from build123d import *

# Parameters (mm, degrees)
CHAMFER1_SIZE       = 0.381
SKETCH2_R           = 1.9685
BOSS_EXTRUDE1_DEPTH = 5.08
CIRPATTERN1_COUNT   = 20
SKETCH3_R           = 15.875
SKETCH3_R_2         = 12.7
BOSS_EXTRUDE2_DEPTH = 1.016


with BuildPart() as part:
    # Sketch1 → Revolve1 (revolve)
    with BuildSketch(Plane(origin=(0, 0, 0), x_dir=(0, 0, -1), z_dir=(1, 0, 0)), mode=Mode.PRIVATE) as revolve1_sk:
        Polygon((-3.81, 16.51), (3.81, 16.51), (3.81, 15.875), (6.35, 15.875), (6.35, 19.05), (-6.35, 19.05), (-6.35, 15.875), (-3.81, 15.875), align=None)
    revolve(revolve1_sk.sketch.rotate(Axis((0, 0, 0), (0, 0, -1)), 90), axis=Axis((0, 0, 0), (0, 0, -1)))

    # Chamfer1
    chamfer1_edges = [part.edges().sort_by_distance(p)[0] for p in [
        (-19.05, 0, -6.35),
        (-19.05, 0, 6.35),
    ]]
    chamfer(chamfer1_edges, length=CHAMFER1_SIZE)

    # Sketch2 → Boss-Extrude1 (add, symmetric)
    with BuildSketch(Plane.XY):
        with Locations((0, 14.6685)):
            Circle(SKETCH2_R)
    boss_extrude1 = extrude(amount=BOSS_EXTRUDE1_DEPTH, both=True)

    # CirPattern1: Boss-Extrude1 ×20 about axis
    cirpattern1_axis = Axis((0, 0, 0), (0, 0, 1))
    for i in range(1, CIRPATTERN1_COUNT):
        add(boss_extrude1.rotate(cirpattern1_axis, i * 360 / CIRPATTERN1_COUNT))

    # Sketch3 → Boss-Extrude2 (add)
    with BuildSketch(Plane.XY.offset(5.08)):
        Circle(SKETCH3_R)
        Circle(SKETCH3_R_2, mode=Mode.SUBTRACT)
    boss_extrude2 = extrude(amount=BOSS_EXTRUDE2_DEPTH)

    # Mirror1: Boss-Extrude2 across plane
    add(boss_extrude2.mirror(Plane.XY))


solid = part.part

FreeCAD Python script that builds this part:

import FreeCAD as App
import Part
import Sketcher

V = App.Vector
Q = App.Units.Quantity


def edges_at(feature, points):
    """Names of the edges that pass closest to the given points."""
    edges = feature.Shape.Edges
    near = lambda p: min(range(len(edges)), key=lambda i: edges[i].distToShape(Part.Vertex(*p))[0])
    return sorted({f"Edge{near(p) + 1}" for p in points})

doc = App.newDocument("Part")
params = doc.addObject("Spreadsheet::Sheet", "Params")
for row, (alias, value) in enumerate([
    ("sketch1_height", "0.3 in"),
    ("sketch1_height2", "0.1 in"),
    ("sketch1_width", "0.025 in"),
    ("revolution_angle", "360 deg"),
    ("chamfer_size", "0.015 in"),
    ("sketch2_diameter", "0.155 in"),
    ("pad1_length", "0.4 in"),
    ("sketch3_diameter", "1 in"),
    ("sketch3_diameter2", "1.25 in"),
    ("pad2_length", "0.04 in"),
], start=1):
    params.set(f"A{row}", alias)
    params.set(f"B{row}", "=" + value)
    params.setAlias(f"B{row}", alias)

body = doc.addObject("PartDesign::Body", "Body")

# Sketch on YZ plane
sketch1 = body.newObject("Sketcher::SketchObject", "Sketch")
sketch1.AttachmentSupport = (doc.getObject("YZ_Plane"), [""])
sketch1.MapMode = "FlatFace"
sketch1.addGeometry([
    Part.LineSegment(V(16.5, 3.8, 0), V(16.5, -3.8, 0)),  # 0
    Part.LineSegment(V(16.5, -3.8, 0), V(15.9, -3.8, 0)),  # 1
    Part.LineSegment(V(15.9, -3.8, 0), V(15.9, -6.3, 0)),  # 2
    Part.LineSegment(V(15.9, -6.3, 0), V(19.1, -6.3, 0)),  # 3
    Part.LineSegment(V(19.1, -6.3, 0), V(19.1, 6.3, 0)),  # 4
    Part.LineSegment(V(19.1, 6.3, 0), V(15.9, 6.3, 0)),  # 5
    Part.LineSegment(V(15.9, 6.3, 0), V(15.9, 3.8, 0)),  # 6
    Part.LineSegment(V(15.9, 3.8, 0), V(16.5, 3.8, 0)),  # 7
], False)
sketch1.addConstraint([
    Sketcher.Constraint("Coincident", 0, 2, 1, 1),
    Sketcher.Constraint("Coincident", 1, 2, 2, 1),
    Sketcher.Constraint("Coincident", 2, 2, 3, 1),
    Sketcher.Constraint("Coincident", 3, 2, 4, 1),
    Sketcher.Constraint("Coincident", 4, 2, 5, 1),
    Sketcher.Constraint("Coincident", 5, 2, 6, 1),
    Sketcher.Constraint("Coincident", 6, 2, 7, 1),
    Sketcher.Constraint("Coincident", 7, 2, 0, 1),
    Sketcher.Constraint("Vertical", 0),
    Sketcher.Constraint("Horizontal", 1),
    Sketcher.Constraint("Vertical", 2),
    Sketcher.Constraint("Horizontal", 3),
    Sketcher.Constraint("Vertical", 4),
    Sketcher.Constraint("Horizontal", 5),
    Sketcher.Constraint("Vertical", 6),
    Sketcher.Constraint("Horizontal", 7),
    Sketcher.Constraint("Symmetric", 2, 2, 5, 2, -1),
    Sketcher.Constraint("Equal", 2, 6),
    Sketcher.Constraint("DistanceY", 0, 2, 0, 1, Q("0.3 in")),
    Sketcher.Constraint("DistanceY", 2, 2, 2, 1, Q("0.1 in")),
    Sketcher.Constraint("DistanceX", 0, 2, 3, 2, Q("0.1 in")),
    Sketcher.Constraint("DistanceX", 1, 2, 1, 1, Q("0.025 in")),
    Sketcher.Constraint("DistanceX", -1, 1, 0, 2, Q("0.65 in")),
])
sketch1.setExpression("Constraints[18]", "Params.sketch1_height")
sketch1.setExpression("Constraints[19]", "Params.sketch1_height2")
sketch1.setExpression("Constraints[21]", "Params.sketch1_width")
revolution = body.newObject("PartDesign::Revolution", "Revolution")
revolution.Profile = sketch1
revolution.ReferenceAxis = (sketch1, ["V_Axis"])
revolution.setExpression("Angle", "Params.revolution_angle")
doc.recompute()

chamfer = body.newObject("PartDesign::Chamfer", "Chamfer")
chamfer.Base = (revolution, edges_at(revolution, [(-19.05, 0, -6.35), (-19.05, 0, 6.35)]))
chamfer.setExpression("Size", "Params.chamfer_size")

# Sketch on XY plane
sketch2 = body.newObject("Sketcher::SketchObject", "Sketch001")
sketch2.AttachmentSupport = (doc.getObject("XY_Plane"), [""])
sketch2.MapMode = "FlatFace"
sketch2.addGeometry(Part.Circle(V(0, 14.7, 0), V(0, 0, 1), 2), False)
sketch2.addConstraint([
    Sketcher.Constraint("PointOnObject", 0, 3, -2),
    Sketcher.Constraint("Diameter", 0, Q("0.155 in")),
    Sketcher.Constraint("DistanceY", -1, 1, 0, 3, Q("0.5775 in")),
])
sketch2.setExpression("Constraints[1]", "Params.sketch2_diameter")
pad1 = body.newObject("PartDesign::Pad", "Pad")
pad1.Profile = sketch2
pad1.setExpression("Length", "Params.pad1_length")
pad1.Midplane = True
doc.recompute()

polarpattern = body.newObject("PartDesign::PolarPattern", "PolarPattern")
polarpattern.Originals = [pad1]
polarpattern.Axis = (doc.getObject("Z_Axis"), [""])
polarpattern.Angle = 360
polarpattern.Occurrences = 20
body.Tip = polarpattern

# Sketch on XY plane
sketch3 = body.newObject("Sketcher::SketchObject", "Sketch002")
sketch3.AttachmentSupport = (doc.getObject("XY_Plane"), [""])
sketch3.MapMode = "FlatFace"
sketch3.AttachmentOffset = App.Placement(V(0, 0, 0.2 * 25.4), App.Rotation())
sketch3.addGeometry([
    Part.Circle(V(0, 0, 0), V(0, 0, 1), 16),
    Part.Circle(V(0, 0, 0), V(0, 0, 1), 13),
], False)
sketch3.addConstraint([
    Sketcher.Constraint("Coincident", 0, 3, -1, 1),
    Sketcher.Constraint("Coincident", 1, 3, -1, 1),
    Sketcher.Constraint("Diameter", 1, Q("1 in")),
    Sketcher.Constraint("Diameter", 0, Q("1.25 in")),
])
sketch3.setExpression("Constraints[2]", "Params.sketch3_diameter")
sketch3.setExpression("Constraints[3]", "Params.sketch3_diameter2")
pad2 = body.newObject("PartDesign::Pad", "Pad001")
pad2.Profile = sketch3
pad2.setExpression("Length", "Params.pad2_length")
doc.recompute()

mirrored = body.newObject("PartDesign::Mirrored", "Mirrored")
mirrored.Originals = [pad2]
mirrored.MirrorPlane = (doc.getObject("XY_Plane"), [""])
body.Tip = mirrored

doc.recompute()
